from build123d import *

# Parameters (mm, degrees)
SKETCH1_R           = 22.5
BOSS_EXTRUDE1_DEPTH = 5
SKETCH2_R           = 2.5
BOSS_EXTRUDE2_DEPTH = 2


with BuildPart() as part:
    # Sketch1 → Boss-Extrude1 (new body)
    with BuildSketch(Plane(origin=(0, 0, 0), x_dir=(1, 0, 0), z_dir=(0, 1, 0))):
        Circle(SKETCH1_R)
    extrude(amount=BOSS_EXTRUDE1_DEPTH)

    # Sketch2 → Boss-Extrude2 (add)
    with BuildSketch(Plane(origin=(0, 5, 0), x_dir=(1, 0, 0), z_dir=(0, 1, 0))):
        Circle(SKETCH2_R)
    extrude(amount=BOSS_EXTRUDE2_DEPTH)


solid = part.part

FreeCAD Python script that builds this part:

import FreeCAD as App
import Part
import Sketcher

V = App.Vector
Q = App.Units.Quantity

doc = App.newDocument("Part")
body = doc.addObject("PartDesign::Body", "Body")

sketch1 = body.newObject("Sketcher::SketchObject", "Sketch")
sketch1.AttachmentSupport = (doc.getObject("XZ_Plane"), [""])
sketch1.MapMode = "FlatFace"
sketch1.addGeometry(Part.Circle(V(0, 0, 0), V(0, 0, 1), 22), False)
sketch1.addConstraint([
    Sketcher.Constraint("Coincident", 0, 3, -1, 1),
    Sketcher.Constraint("Diameter", 0, Q("45 mm")),
])
pad1 = body.newObject("PartDesign::Pad", "Pad")
pad1.Profile = sketch1
pad1.Length = 5
pad1.Reversed = True

sketch2 = body.newObject("Sketcher::SketchObject", "Sketch001")
sketch2.AttachmentSupport = (doc.getObject("XZ_Plane"), [""])
sketch2.MapMode = "FlatFace"
sketch2.AttachmentOffset = App.Placement(V(0, 0, -5), App.Rotation())
sketch2.addGeometry(Part.Circle(V(0, 0, 0), V(0, 0, 1), 2.5), False)
sketch2.addConstraint([
    Sketcher.Constraint("Coincident", 0, 3, -1, 1),
    Sketcher.Constraint("Diameter", 0, Q("5 mm")),
])
pad2 = body.newObject("PartDesign::Pad", "Pad001")
pad2.Profile = sketch2
pad2.Length = 2
pad2.Reversed = True

doc.recompute()
